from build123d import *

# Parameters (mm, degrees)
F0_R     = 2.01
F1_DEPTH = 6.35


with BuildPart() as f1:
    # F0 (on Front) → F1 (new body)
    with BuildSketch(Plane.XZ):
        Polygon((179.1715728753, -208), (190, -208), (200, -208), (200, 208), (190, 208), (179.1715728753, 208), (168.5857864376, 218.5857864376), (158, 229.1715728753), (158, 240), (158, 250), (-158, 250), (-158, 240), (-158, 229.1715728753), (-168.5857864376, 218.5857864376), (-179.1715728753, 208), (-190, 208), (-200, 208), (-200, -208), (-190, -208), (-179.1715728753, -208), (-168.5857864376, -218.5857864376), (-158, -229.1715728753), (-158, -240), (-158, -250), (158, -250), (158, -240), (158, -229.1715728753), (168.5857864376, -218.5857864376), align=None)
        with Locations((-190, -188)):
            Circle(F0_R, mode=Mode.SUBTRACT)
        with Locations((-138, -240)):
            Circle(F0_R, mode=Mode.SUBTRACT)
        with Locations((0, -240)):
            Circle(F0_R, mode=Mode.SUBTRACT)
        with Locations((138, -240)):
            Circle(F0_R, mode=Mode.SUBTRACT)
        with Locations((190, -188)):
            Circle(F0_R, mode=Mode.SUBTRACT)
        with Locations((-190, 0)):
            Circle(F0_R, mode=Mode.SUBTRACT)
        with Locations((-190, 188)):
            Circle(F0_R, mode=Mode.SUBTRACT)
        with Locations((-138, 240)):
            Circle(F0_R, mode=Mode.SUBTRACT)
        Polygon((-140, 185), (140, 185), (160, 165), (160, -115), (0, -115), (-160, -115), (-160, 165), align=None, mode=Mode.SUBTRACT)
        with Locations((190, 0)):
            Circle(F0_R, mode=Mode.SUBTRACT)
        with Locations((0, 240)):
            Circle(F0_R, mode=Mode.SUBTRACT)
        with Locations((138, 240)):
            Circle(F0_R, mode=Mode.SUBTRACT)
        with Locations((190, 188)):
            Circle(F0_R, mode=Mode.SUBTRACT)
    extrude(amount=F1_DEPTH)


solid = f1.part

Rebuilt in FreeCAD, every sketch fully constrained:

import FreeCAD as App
import Part
import Sketcher

doc = App.newDocument("Part")
params = doc.addObject("Spreadsheet::Sheet", "Params")
for row, (alias, value) in enumerate([
    ("sketch1_diameter", "4.02 mm"),
    ("sketch1_width", "316 mm"),
    ("sketch1_width2", "280 mm"),
    ("sketch1_width3", "320 mm"),
    ("sketch1_height", "416 mm"),
    ("pad1_length", "6.35 mm"),
], start=1):
    params.set(f"A{row}", alias)
    params.set(f"B{row}", "=" + value)
    params.setAlias(f"B{row}", alias)

body = doc.addObject("PartDesign::Body", "Body")

sketch1 = body.newObject("Sketcher::SketchObject", "Sketch")
sketch1.AttachmentSupport = (doc.getObject("XZ_Plane"), [""])
sketch1.MapMode = "FlatFace"
sketch1.addGeometry(Part.LineSegment(App.Vector(179.171573, -208, 0), App.Vector(200, -208, 0)), False)
sketch1.addGeometry(Part.LineSegment(App.Vector(200, -208, 0), App.Vector(200, 208, 0)), False)
sketch1.addGeometry(Part.LineSegment(App.Vector(200, 208, 0), App.Vector(179.171573, 208, 0)), False)
sketch1.addGeometry(Part.LineSegment(App.Vector(179.171573, 208, 0), App.Vector(168.585786, 218.585786, 0)), False)
sketch1.addGeometry(Part.LineSegment(App.Vector(168.585786, 218.585786, 0), App.Vector(158, 229.171573, 0)), False)
sketch1.addGeometry(Part.LineSegment(App.Vector(158, 229.171573, 0), App.Vector(158, 250, 0)), False)
sketch1.addGeometry(Part.LineSegment(App.Vector(158, 250, 0), App.Vector(-158, 250, 0)), False)
sketch1.addGeometry(Part.LineSegment(App.Vector(-158, 250, 0), App.Vector(-158, 229.171573, 0)), False)
sketch1.addGeometry(Part.LineSegment(App.Vector(-158, 229.171573, 0), App.Vector(-168.585786, 218.585786, 0)), False)
sketch1.addGeometry(Part.LineSegment(App.Vector(-168.585786, 218.585786, 0), App.Vector(-179.171573, 208, 0)), False)
sketch1.addGeometry(Part.LineSegment(App.Vector(-179.171573, 208, 0), App.Vector(-200, 208, 0)), False)
sketch1.addGeometry(Part.LineSegment(App.Vector(-200, 208, 0), App.Vector(-200, -208, 0)), False)
sketch1.addGeometry(Part.LineSegment(App.Vector(-200, -208, 0), App.Vector(-179.171573, -208, 0)), False)
sketch1.addGeometry(Part.LineSegment(App.Vector(-179.171573, -208, 0), App.Vector(-168.585786, -218.585786, 0)), False)
sketch1.addGeometry(Part.LineSegment(App.Vector(-168.585786, -218.585786, 0), App.Vector(-158, -229.171573, 0)), False)
sketch1.addGeometry(Part.LineSegment(App.Vector(-158, -229.171573, 0), App.Vector(-158, -250, 0)), False)
sketch1.addGeometry(Part.LineSegment(App.Vector(-158, -250, 0), App.Vector(158, -250, 0)), False)
sketch1.addGeometry(Part.LineSegment(App.Vector(158, -250, 0), App.Vector(158, -229.171573, 0)), False)
sketch1.addGeometry(Part.LineSegment(App.Vector(158, -229.171573, 0), App.Vector(168.585786, -218.585786, 0)), False)
sketch1.addGeometry(Part.LineSegment(App.Vector(168.585786, -218.585786, 0), App.Vector(179.171573, -208, 0)), False)
sketch1.addGeometry(Part.Circle(App.Vector(-190, -188, 0), App.Vector(0, 0, 1), 2.01), False)
sketch1.addGeometry(Part.Circle(App.Vector(-138, -240, 0), App.Vector(0, 0, 1), 2.01), False)
sketch1.addGeometry(Part.Circle(App.Vector(0, -240, 0), App.Vector(0, 0, 1), 2.01), False)
sketch1.addGeometry(Part.Circle(App.Vector(138, -240, 0), App.Vector(0, 0, 1), 2.01), False)
sketch1.addGeometry(Part.Circle(App.Vector(190, -188, 0), App.Vector(0, 0, 1), 2.01), False)
sketch1.addGeometry(Part.Circle(App.Vector(-190, 0, 0), App.Vector(0, 0, 1), 2.01), False)
sketch1.addGeometry(Part.LineSegment(App.Vector(-160, 165, 0), App.Vector(-140, 185, 0)), False)
sketch1.addGeometry(Part.LineSegment(App.Vector(-140, 185, 0), App.Vector(140, 185, 0)), False)
sketch1.addGeometry(Part.LineSegment(App.Vector(140, 185, 0), App.Vector(160, 165, 0)), False)
sketch1.addGeometry(Part.LineSegment(App.Vector(160, 165, 0), App.Vector(160, -115, 0)), False)
sketch1.addGeometry(Part.LineSegment(App.Vector(160, -115, 0), App.Vector(-160, -115, 0)), False)
sketch1.addGeometry(Part.LineSegment(App.Vector(-160, -115, 0), App.Vector(-160, 165, 0)), False)
sketch1.addGeometry(Part.Circle(App.Vector(-190, 188, 0), App.Vector(0, 0, 1), 2.01), False)
sketch1.addGeometry(Part.Circle(App.Vector(-138, 240, 0), App.Vector(0, 0, 1), 2.01), False)
sketch1.addGeometry(Part.Circle(App.Vector(0, 240, 0), App.Vector(0, 0, 1), 2.01), False)
sketch1.addGeometry(Part.Circle(App.Vector(190, 0, 0), App.Vector(0, 0, 1), 2.01), False)
sketch1.addGeometry(Part.Circle(App.Vector(138, 240, 0), App.Vector(0, 0, 1), 2.01), False)
sketch1.addGeometry(Part.Circle(App.Vector(190, 188, 0), App.Vector(0, 0, 1), 2.01), False)
sketch1.addConstraint(Sketcher.Constraint("Coincident", 0, 2, 1, 1))
sketch1.addConstraint(Sketcher.Constraint("Coincident", 1, 2, 2, 1))
sketch1.addConstraint(Sketcher.Constraint("Coincident", 2, 2, 3, 1))
sketch1.addConstraint(Sketcher.Constraint("Coincident", 3, 2, 4, 1))
sketch1.addConstraint(Sketcher.Constraint("Coincident", 4, 2, 5, 1))
sketch1.addConstraint(Sketcher.Constraint("Coincident", 5, 2, 6, 1))
sketch1.addConstraint(Sketcher.Constraint("Coincident", 6, 2, 7, 1))
sketch1.addConstraint(Sketcher.Constraint("Coincident", 7, 2, 8, 1))
sketch1.addConstraint(Sketcher.Constraint("Coincident", 8, 2, 9, 1))
sketch1.addConstraint(Sketcher.Constraint("Coincident", 9, 2, 10, 1))
sketch1.addConstraint(Sketcher.Constraint("Coincident", 10, 2, 11, 1))
sketch1.addConstraint(Sketcher.Constraint("Coincident", 11, 2, 12, 1))
sketch1.addConstraint(Sketcher.Constraint("Coincident", 12, 2, 13, 1))
sketch1.addConstraint(Sketcher.Constraint("Coincident", 13, 2, 14, 1))
sketch1.addConstraint(Sketcher.Constraint("Coincident", 14, 2, 15, 1))
sketch1.addConstraint(Sketcher.Constraint("Coincident", 15, 2, 16, 1))
sketch1.addConstraint(Sketcher.Constraint("Coincident", 16, 2, 17, 1))
sketch1.addConstraint(Sketcher.Constraint("Coincident", 17, 2, 18, 1))
sketch1.addConstraint(Sketcher.Constraint("Coincident", 18, 2, 19, 1))
sketch1.addConstraint(Sketcher.Constraint("Coincident", 19, 2, 0, 1))
sketch1.addConstraint(Sketcher.Constraint("Coincident", 26, 2, 27, 1))
sketch1.addConstraint(Sketcher.Constraint("Coincident", 27, 2, 28, 1))
sketch1.addConstraint(Sketcher.Constraint("Coincident", 28, 2, 29, 1))
sketch1.addConstraint(Sketcher.Constraint("Coincident", 29, 2, 30, 1))
sketch1.addConstraint(Sketcher.Constraint("Coincident", 30, 2, 31, 1))
sketch1.addConstraint(Sketcher.Constraint("Coincident", 31, 2, 26, 1))
sketch1.addConstraint(Sketcher.Constraint("Horizontal", 0))
sketch1.addConstraint(Sketcher.Constraint("Vertical", 1))
sketch1.addConstraint(Sketcher.Constraint("Horizontal", 2))
sketch1.addConstraint(Sketcher.Constraint("Vertical", 5))
sketch1.addConstraint(Sketcher.Constraint("Horizontal", 6))
sketch1.addConstraint(Sketcher.Constraint("Vertical", 7))
sketch1.addConstraint(Sketcher.Constraint("Horizontal", 10))
sketch1.addConstraint(Sketcher.Constraint("Vertical", 11))
sketch1.addConstraint(Sketcher.Constraint("Horizontal", 12))
sketch1.addConstraint(Sketcher.Constraint("Vertical", 15))
sketch1.addConstraint(Sketcher.Constraint("Horizontal", 16))
sketch1.addConstraint(Sketcher.Constraint("Vertical", 17))
sketch1.addConstraint(Sketcher.Constraint("Horizontal", 27))
sketch1.addConstraint(Sketcher.Constraint("Vertical", 29))
sketch1.addConstraint(Sketcher.Constraint("Horizontal", 30))
sketch1.addConstraint(Sketcher.Constraint("Vertical", 31))
sketch1.addConstraint(Sketcher.Constraint("Equal", 20, 21))
sketch1.addConstraint(Sketcher.Constraint("Equal", 21, 22))
sketch1.addConstraint(Sketcher.Constraint("Equal", 22, 23))
sketch1.addConstraint(Sketcher.Constraint("Equal", 23, 24))
sketch1.addConstraint(Sketcher.Constraint("Equal", 24, 25))
sketch1.addConstraint(Sketcher.Constraint("Equal", 25, 32))
sketch1.addConstraint(Sketcher.Constraint("Equal", 32, 33))
sketch1.addConstraint(Sketcher.Constraint("Equal", 33, 34))
sketch1.addConstraint(Sketcher.Constraint("Equal", 34, 35))
sketch1.addConstraint(Sketcher.Constraint("Equal", 35, 36))
sketch1.addConstraint(Sketcher.Constraint("Equal", 36, 37))
sketch1.addConstraint(Sketcher.Constraint("Symmetric", 24, 3, 32, 3, -1, 1))
sketch1.addConstraint(Sketcher.Constraint("Symmetric", 23, 3, 33, 3, -1, 1))
sketch1.addConstraint(Sketcher.Constraint("Symmetric", 22, 3, 34, 3, -1, 1))
sketch1.addConstraint(Sketcher.Constraint("Symmetric", 25, 3, 35, 3, -1, 1))
sketch1.addConstraint(Sketcher.Constraint("Symmetric", 21, 3, 36, 3, -1, 1))
sketch1.addConstraint(Sketcher.Constraint("Symmetric", 20, 3, 37, 3, -1, 1))
sketch1.addConstraint(Sketcher.Constraint("Symmetric", 0, 2, 10, 2, -1, 1))
sketch1.addConstraint(Sketcher.Constraint("Symmetric", 2, 2, 12, 2, -1, 1))
sketch1.addConstraint(Sketcher.Constraint("Symmetric", 3, 2, 13, 2, -1, 1))
sketch1.addConstraint(Sketcher.Constraint("Symmetric", 4, 2, 14, 2, -1, 1))
sketch1.addConstraint(Sketcher.Constraint("Symmetric", 6, 2, 16, 2, -1, 1))
sketch1.addConstraint(Sketcher.Constraint("Symmetric", 8, 2, 18, 2, -1, 1))
sketch1.addConstraint(Sketcher.Constraint("Symmetric", 21, 3, 23, 3, -2))
sketch1.addConstraint(Sketcher.Constraint("Symmetric", 20, 3, 24, 3, -2))
sketch1.addConstraint(Sketcher.Constraint("Symmetric", 4, 2, 7, 2, -2))
sketch1.addConstraint(Sketcher.Constraint("Symmetric", 3, 2, 8, 2, -2))
sketch1.addConstraint(Sketcher.Constraint("Symmetric", 2, 2, 9, 2, -2))
sketch1.addConstraint(Sketcher.Constraint("Symmetric", 28, 2, 31, 2, -2))
sketch1.addConstraint(Sketcher.Constraint("PointOnObject", 22, 3, -2))
sketch1.addConstraint(Sketcher.Constraint("PointOnObject", 25, 3, -1))
sketch1.addConstraint(Sketcher.Constraint("Parallel", 3, 4))
sketch1.addConstraint(Sketcher.Constraint("Perpendicular", 4, 8))
sketch1.addConstraint(Sketcher.Constraint("Perpendicular", 14, 18))
sketch1.addConstraint(Sketcher.Constraint("Parallel", 18, 19))
sketch1.addConstraint(Sketcher.Constraint("Parallel", 19, 26))
sketch1.addConstraint(Sketcher.Constraint("Perpendicular", 26, 28))
sketch1.addConstraint(Sketcher.Constraint("Horizontal", 21, 3, 22, 3))
sketch1.addConstraint(Sketcher.Constraint("Vertical", 20, 3, 25, 3))
sketch1.addConstraint(Sketcher.Constraint("Equal", 12, 5))
sketch1.addConstraint(Sketcher.Constraint("Equal", 27, 29))
sketch1.addConstraint(Sketcher.Constraint("Equal", 3, 4))
sketch1.addConstraint(Sketcher.Constraint("Diameter", 20, 4.02))
sketch1.addConstraint(Sketcher.Constraint("DistanceX", 6, 2, 6, 1, 316.0))
sketch1.addConstraint(Sketcher.Constraint("DistanceX", 27, 1, 27, 2, 280.0))
sketch1.addConstraint(Sketcher.Constraint("DistanceX", 30, 2, 30, 1, 320.0))
sketch1.addConstraint(Sketcher.Constraint("DistanceY", 1, 1, 1, 2, 416.0))
sketch1.addConstraint(Sketcher.Constraint("DistanceX", 20, 3, -1, 1, 190.0))
sketch1.addConstraint(Sketcher.Constraint("DistanceY", 20, 3, -1, 1, 188.0))
sketch1.addConstraint(Sketcher.Constraint("DistanceX", 21, 3, -1, 1, 138.0))
sketch1.addConstraint(Sketcher.Constraint("DistanceY", 21, 3, -1, 1, 240.0))
sketch1.addConstraint(Sketcher.Constraint("DistanceX", -1, 1, 0, 2, 200.0))
sketch1.addConstraint(Sketcher.Constraint("DistanceY", -1, 1, 26, 2, 185.0))
sketch1.addConstraint(Sketcher.Constraint("DistanceX", 0, 1, 0, 2, 20.828427))
sketch1.setExpression("Constraints[84]", "Params.sketch1_diameter")
sketch1.setExpression("Constraints[85]", "Params.sketch1_width")
sketch1.setExpression("Constraints[86]", "Params.sketch1_width2")
sketch1.setExpression("Constraints[87]", "Params.sketch1_width3")
sketch1.setExpression("Constraints[88]", "Params.sketch1_height")
pad1 = body.newObject("PartDesign::Pad", "Pad")
pad1.Profile = sketch1
pad1.setExpression("Length", "Params.pad1_length")

doc.recompute()
